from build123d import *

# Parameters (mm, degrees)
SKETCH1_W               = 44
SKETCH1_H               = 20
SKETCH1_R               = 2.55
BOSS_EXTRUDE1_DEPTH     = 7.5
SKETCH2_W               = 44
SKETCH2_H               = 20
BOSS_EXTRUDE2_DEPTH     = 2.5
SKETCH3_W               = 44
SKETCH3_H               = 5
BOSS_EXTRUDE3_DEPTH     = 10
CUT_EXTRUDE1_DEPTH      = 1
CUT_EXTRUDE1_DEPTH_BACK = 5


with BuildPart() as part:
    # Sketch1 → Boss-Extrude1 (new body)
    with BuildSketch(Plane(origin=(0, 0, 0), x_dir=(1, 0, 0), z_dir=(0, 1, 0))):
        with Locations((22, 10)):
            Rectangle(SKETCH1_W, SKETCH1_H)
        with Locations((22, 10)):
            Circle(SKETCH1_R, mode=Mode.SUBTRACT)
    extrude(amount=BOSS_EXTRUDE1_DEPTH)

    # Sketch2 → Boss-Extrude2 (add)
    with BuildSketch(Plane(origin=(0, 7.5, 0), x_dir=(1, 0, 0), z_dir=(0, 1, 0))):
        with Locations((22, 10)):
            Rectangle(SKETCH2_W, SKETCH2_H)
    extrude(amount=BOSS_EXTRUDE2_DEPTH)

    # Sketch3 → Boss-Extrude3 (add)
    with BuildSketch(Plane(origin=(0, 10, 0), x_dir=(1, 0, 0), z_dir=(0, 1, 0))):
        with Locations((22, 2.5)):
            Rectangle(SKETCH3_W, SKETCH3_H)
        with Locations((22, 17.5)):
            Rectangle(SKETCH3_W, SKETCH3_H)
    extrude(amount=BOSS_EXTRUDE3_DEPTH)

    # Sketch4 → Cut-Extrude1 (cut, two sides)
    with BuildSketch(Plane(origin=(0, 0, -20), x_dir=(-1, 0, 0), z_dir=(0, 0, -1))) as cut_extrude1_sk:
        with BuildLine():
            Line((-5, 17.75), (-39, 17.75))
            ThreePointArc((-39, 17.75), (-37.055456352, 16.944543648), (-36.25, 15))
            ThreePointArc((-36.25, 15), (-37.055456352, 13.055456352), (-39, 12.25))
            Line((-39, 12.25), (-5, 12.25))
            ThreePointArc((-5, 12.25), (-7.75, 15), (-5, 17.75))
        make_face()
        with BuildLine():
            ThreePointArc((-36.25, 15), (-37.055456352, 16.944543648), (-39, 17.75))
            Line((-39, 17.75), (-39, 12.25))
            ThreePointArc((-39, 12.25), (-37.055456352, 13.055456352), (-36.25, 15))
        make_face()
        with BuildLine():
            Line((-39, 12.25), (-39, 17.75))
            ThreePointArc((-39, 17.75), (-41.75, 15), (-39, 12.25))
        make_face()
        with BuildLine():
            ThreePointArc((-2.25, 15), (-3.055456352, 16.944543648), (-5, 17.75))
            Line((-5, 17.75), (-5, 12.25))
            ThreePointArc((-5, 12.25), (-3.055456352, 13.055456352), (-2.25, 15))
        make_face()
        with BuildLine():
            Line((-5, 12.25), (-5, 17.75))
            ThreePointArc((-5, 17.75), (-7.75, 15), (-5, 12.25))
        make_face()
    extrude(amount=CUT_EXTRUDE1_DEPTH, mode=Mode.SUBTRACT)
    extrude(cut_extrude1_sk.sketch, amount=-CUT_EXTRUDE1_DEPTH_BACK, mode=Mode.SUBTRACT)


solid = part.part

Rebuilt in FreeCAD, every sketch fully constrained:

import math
import FreeCAD as App
import Part
import Sketcher
Q = App.Units.Quantity


def add_polygon(sketch, points):
    """Adds a closed chain of lines whose ends are joined by coincident constraints."""
    first, n = sketch.GeometryCount, len(points)
    for a, b in zip(points, points[1:] + points[:1]):
        sketch.addGeometry(Part.LineSegment(App.Vector(*a, 0), App.Vector(*b, 0)), False)
    for i in range(n):
        sketch.addConstraint(Sketcher.Constraint("Coincident", first + i, 2, first + (i + 1) % n, 1))

doc = App.newDocument("Part")
body = doc.addObject("PartDesign::Body", "Body")

# Sketch on XZ plane
sketch1 = doc.addObject("Sketcher::SketchObject", "Sketch")
body.addObject(sketch1)
sketch1.AttachmentSupport = (doc.XZ_Plane, [""])
sketch1.MapMode = "FlatFace"
add_polygon(sketch1, [(0, -20), (0, 0), (44, 0), (44, -20)])  # lines 0-3
sketch1.addGeometry(Part.Circle(App.Vector(22, -10, 0), App.Vector(0, 0, 1), 2.5), False)  # 4
sketch1.addConstraint(Sketcher.Constraint("Vertical", 0))
sketch1.addConstraint(Sketcher.Constraint("Horizontal", 1))
sketch1.addConstraint(Sketcher.Constraint("Vertical", 2))
sketch1.addConstraint(Sketcher.Constraint("Horizontal", 3))
sketch1.addConstraint(Sketcher.Constraint("Coincident", 0, 2, -1, 1))
sketch1.addConstraint(Sketcher.Constraint("Diameter", 4, Q("5.1 mm")))
sketch1.addConstraint(Sketcher.Constraint("DistanceX", 1, 1, 1, 2, Q("44 mm")))
sketch1.addConstraint(Sketcher.Constraint("DistanceY", 0, 1, 0, 2, Q("20 mm")))
sketch1.addConstraint(Sketcher.Constraint("DistanceX", -1, 1, 4, 3, Q("22 mm")))
sketch1.addConstraint(Sketcher.Constraint("DistanceY", 4, 3, -1, 1, Q("10 mm")))
pad1 = doc.addObject("PartDesign::Pad", "Pad")
body.addObject(pad1)
pad1.Profile = sketch1
pad1.Length = 7.5
pad1.Reversed = True

# Sketch on XZ plane
sketch2 = doc.addObject("Sketcher::SketchObject", "Sketch001")
body.addObject(sketch2)
sketch2.AttachmentSupport = (doc.XZ_Plane, [""])
sketch2.MapMode = "FlatFace"
sketch2.AttachmentOffset = App.Placement(App.Vector(0, 0, -7.5), App.Rotation())
add_polygon(sketch2, [(0, -20), (0, 0), (44, 0), (44, -20)])  # lines 0-3
sketch2.addConstraint(Sketcher.Constraint("Vertical", 0))
sketch2.addConstraint(Sketcher.Constraint("Horizontal", 1))
sketch2.addConstraint(Sketcher.Constraint("Vertical", 2))
sketch2.addConstraint(Sketcher.Constraint("Horizontal", 3))
sketch2.addConstraint(Sketcher.Constraint("Coincident", 0, 2, -1, 1))
sketch2.addConstraint(Sketcher.Constraint("DistanceX", 1, 1, 1, 2, Q("44 mm")))
sketch2.addConstraint(Sketcher.Constraint("DistanceY", 0, 1, 0, 2, Q("20 mm")))
pad2 = doc.addObject("PartDesign::Pad", "Pad001")
body.addObject(pad2)
pad2.Profile = sketch2
pad2.Length = 2.5
pad2.Reversed = True

# Sketch on XZ plane
sketch3 = doc.addObject("Sketcher::SketchObject", "Sketch002")
body.addObject(sketch3)
sketch3.AttachmentSupport = (doc.XZ_Plane, [""])
sketch3.MapMode = "FlatFace"
sketch3.AttachmentOffset = App.Placement(App.Vector(0, 0, -10), App.Rotation())
add_polygon(sketch3, [(0, -5), (0, 0), (44, 0), (44, -5)])  # lines 0-3
add_polygon(sketch3, [(0, -20), (0, -15), (44, -15), (44, -20)])  # lines 4-7
sketch3.addConstraint(Sketcher.Constraint("Vertical", 0))
sketch3.addConstraint(Sketcher.Constraint("Horizontal", 1))
sketch3.addConstraint(Sketcher.Constraint("Vertical", 2))
sketch3.addConstraint(Sketcher.Constraint("Horizontal", 3))
sketch3.addConstraint(Sketcher.Constraint("Vertical", 4))
sketch3.addConstraint(Sketcher.Constraint("Horizontal", 5))
sketch3.addConstraint(Sketcher.Constraint("Vertical", 6))
sketch3.addConstraint(Sketcher.Constraint("Horizontal", 7))
sketch3.addConstraint(Sketcher.Constraint("Coincident", 0, 2, -1, 1))
sketch3.addConstraint(Sketcher.Constraint("PointOnObject", 4, 2, -2))
sketch3.addConstraint(Sketcher.Constraint("Vertical", 2, 2, 5, 2))
sketch3.addConstraint(Sketcher.Constraint("Equal", 2, 4))
sketch3.addConstraint(Sketcher.Constraint("DistanceX", 1, 1, 1, 2, Q("44 mm")))
sketch3.addConstraint(Sketcher.Constraint("DistanceY", 0, 1, 0, 2, Q("5 mm")))
sketch3.addConstraint(Sketcher.Constraint("DistanceY", 4, 2, -1, 1, Q("15 mm")))
pad3 = doc.addObject("PartDesign::Pad", "Pad002")
body.addObject(pad3)
pad3.Profile = sketch3
pad3.Length = 10
pad3.Reversed = True

# Sketch on XY plane
sketch4 = doc.addObject("Sketcher::SketchObject", "Sketch003")
body.addObject(sketch4)
sketch4.AttachmentSupport = (doc.XY_Plane, [""])
sketch4.MapMode = "FlatFace"
sketch4.AttachmentOffset = App.Placement(App.Vector(0, 0, -20), App.Rotation())
sketch4.addGeometry(Part.LineSegment(App.Vector(5, 17.8, 0), App.Vector(39, 17.8, 0)), False)
sketch4.addGeometry(Part.ArcOfCircle(Part.Circle(App.Vector(39, 15, 0), App.Vector(0, 0, 1), 2.8), math.radians(-90), math.radians(90)), False)
sketch4.addGeometry(Part.LineSegment(App.Vector(39, 12.2, 0), App.Vector(5, 12.2, 0)), False)
sketch4.addGeometry(Part.ArcOfCircle(Part.Circle(App.Vector(5, 15, 0), App.Vector(0, 0, 1), 2.8), math.radians(-180), math.radians(-90)), False)
sketch4.addGeometry(Part.ArcOfCircle(Part.Circle(App.Vector(5, 15, 0), App.Vector(0, 0, 1), 2.8), math.radians(90), math.radians(180)), False)
sketch4.addConstraint(Sketcher.Constraint("Tangent", 0, 2, 1, 2))
sketch4.addConstraint(Sketcher.Constraint("Tangent", 1, 1, 2, 1))
sketch4.addConstraint(Sketcher.Constraint("Tangent", 2, 2, 3, 2))
sketch4.addConstraint(Sketcher.Constraint("Tangent", 3, 1, 4, 2))
sketch4.addConstraint(Sketcher.Constraint("Tangent", 4, 1, 0, 1))
sketch4.addConstraint(Sketcher.Constraint("Horizontal", 0))
sketch4.addConstraint(Sketcher.Constraint("Horizontal", 2))
sketch4.addConstraint(Sketcher.Constraint("Equal", 1, 3))
sketch4.addConstraint(Sketcher.Constraint("Horizontal", 4, 3, 3, 1))
sketch4.addConstraint(Sketcher.Constraint("DistanceX", 0, 1, 0, 2, Q("34 mm")))
sketch4.addConstraint(Sketcher.Constraint("Radius", 1, Q("2.75 mm")))
sketch4.addConstraint(Sketcher.Constraint("DistanceX", -1, 1, 1, 3, Q("39 mm")))
sketch4.addConstraint(Sketcher.Constraint("DistanceY", -1, 1, 1, 3, Q("15 mm")))
pocket1 = doc.addObject("PartDesign::Pocket", "Pocket")
body.addObject(pocket1)
pocket1.Profile = sketch4
pocket1.Type = "TwoLengths"
pocket1.Length = 1
pocket1.Length2 = 5

doc.recompute()
